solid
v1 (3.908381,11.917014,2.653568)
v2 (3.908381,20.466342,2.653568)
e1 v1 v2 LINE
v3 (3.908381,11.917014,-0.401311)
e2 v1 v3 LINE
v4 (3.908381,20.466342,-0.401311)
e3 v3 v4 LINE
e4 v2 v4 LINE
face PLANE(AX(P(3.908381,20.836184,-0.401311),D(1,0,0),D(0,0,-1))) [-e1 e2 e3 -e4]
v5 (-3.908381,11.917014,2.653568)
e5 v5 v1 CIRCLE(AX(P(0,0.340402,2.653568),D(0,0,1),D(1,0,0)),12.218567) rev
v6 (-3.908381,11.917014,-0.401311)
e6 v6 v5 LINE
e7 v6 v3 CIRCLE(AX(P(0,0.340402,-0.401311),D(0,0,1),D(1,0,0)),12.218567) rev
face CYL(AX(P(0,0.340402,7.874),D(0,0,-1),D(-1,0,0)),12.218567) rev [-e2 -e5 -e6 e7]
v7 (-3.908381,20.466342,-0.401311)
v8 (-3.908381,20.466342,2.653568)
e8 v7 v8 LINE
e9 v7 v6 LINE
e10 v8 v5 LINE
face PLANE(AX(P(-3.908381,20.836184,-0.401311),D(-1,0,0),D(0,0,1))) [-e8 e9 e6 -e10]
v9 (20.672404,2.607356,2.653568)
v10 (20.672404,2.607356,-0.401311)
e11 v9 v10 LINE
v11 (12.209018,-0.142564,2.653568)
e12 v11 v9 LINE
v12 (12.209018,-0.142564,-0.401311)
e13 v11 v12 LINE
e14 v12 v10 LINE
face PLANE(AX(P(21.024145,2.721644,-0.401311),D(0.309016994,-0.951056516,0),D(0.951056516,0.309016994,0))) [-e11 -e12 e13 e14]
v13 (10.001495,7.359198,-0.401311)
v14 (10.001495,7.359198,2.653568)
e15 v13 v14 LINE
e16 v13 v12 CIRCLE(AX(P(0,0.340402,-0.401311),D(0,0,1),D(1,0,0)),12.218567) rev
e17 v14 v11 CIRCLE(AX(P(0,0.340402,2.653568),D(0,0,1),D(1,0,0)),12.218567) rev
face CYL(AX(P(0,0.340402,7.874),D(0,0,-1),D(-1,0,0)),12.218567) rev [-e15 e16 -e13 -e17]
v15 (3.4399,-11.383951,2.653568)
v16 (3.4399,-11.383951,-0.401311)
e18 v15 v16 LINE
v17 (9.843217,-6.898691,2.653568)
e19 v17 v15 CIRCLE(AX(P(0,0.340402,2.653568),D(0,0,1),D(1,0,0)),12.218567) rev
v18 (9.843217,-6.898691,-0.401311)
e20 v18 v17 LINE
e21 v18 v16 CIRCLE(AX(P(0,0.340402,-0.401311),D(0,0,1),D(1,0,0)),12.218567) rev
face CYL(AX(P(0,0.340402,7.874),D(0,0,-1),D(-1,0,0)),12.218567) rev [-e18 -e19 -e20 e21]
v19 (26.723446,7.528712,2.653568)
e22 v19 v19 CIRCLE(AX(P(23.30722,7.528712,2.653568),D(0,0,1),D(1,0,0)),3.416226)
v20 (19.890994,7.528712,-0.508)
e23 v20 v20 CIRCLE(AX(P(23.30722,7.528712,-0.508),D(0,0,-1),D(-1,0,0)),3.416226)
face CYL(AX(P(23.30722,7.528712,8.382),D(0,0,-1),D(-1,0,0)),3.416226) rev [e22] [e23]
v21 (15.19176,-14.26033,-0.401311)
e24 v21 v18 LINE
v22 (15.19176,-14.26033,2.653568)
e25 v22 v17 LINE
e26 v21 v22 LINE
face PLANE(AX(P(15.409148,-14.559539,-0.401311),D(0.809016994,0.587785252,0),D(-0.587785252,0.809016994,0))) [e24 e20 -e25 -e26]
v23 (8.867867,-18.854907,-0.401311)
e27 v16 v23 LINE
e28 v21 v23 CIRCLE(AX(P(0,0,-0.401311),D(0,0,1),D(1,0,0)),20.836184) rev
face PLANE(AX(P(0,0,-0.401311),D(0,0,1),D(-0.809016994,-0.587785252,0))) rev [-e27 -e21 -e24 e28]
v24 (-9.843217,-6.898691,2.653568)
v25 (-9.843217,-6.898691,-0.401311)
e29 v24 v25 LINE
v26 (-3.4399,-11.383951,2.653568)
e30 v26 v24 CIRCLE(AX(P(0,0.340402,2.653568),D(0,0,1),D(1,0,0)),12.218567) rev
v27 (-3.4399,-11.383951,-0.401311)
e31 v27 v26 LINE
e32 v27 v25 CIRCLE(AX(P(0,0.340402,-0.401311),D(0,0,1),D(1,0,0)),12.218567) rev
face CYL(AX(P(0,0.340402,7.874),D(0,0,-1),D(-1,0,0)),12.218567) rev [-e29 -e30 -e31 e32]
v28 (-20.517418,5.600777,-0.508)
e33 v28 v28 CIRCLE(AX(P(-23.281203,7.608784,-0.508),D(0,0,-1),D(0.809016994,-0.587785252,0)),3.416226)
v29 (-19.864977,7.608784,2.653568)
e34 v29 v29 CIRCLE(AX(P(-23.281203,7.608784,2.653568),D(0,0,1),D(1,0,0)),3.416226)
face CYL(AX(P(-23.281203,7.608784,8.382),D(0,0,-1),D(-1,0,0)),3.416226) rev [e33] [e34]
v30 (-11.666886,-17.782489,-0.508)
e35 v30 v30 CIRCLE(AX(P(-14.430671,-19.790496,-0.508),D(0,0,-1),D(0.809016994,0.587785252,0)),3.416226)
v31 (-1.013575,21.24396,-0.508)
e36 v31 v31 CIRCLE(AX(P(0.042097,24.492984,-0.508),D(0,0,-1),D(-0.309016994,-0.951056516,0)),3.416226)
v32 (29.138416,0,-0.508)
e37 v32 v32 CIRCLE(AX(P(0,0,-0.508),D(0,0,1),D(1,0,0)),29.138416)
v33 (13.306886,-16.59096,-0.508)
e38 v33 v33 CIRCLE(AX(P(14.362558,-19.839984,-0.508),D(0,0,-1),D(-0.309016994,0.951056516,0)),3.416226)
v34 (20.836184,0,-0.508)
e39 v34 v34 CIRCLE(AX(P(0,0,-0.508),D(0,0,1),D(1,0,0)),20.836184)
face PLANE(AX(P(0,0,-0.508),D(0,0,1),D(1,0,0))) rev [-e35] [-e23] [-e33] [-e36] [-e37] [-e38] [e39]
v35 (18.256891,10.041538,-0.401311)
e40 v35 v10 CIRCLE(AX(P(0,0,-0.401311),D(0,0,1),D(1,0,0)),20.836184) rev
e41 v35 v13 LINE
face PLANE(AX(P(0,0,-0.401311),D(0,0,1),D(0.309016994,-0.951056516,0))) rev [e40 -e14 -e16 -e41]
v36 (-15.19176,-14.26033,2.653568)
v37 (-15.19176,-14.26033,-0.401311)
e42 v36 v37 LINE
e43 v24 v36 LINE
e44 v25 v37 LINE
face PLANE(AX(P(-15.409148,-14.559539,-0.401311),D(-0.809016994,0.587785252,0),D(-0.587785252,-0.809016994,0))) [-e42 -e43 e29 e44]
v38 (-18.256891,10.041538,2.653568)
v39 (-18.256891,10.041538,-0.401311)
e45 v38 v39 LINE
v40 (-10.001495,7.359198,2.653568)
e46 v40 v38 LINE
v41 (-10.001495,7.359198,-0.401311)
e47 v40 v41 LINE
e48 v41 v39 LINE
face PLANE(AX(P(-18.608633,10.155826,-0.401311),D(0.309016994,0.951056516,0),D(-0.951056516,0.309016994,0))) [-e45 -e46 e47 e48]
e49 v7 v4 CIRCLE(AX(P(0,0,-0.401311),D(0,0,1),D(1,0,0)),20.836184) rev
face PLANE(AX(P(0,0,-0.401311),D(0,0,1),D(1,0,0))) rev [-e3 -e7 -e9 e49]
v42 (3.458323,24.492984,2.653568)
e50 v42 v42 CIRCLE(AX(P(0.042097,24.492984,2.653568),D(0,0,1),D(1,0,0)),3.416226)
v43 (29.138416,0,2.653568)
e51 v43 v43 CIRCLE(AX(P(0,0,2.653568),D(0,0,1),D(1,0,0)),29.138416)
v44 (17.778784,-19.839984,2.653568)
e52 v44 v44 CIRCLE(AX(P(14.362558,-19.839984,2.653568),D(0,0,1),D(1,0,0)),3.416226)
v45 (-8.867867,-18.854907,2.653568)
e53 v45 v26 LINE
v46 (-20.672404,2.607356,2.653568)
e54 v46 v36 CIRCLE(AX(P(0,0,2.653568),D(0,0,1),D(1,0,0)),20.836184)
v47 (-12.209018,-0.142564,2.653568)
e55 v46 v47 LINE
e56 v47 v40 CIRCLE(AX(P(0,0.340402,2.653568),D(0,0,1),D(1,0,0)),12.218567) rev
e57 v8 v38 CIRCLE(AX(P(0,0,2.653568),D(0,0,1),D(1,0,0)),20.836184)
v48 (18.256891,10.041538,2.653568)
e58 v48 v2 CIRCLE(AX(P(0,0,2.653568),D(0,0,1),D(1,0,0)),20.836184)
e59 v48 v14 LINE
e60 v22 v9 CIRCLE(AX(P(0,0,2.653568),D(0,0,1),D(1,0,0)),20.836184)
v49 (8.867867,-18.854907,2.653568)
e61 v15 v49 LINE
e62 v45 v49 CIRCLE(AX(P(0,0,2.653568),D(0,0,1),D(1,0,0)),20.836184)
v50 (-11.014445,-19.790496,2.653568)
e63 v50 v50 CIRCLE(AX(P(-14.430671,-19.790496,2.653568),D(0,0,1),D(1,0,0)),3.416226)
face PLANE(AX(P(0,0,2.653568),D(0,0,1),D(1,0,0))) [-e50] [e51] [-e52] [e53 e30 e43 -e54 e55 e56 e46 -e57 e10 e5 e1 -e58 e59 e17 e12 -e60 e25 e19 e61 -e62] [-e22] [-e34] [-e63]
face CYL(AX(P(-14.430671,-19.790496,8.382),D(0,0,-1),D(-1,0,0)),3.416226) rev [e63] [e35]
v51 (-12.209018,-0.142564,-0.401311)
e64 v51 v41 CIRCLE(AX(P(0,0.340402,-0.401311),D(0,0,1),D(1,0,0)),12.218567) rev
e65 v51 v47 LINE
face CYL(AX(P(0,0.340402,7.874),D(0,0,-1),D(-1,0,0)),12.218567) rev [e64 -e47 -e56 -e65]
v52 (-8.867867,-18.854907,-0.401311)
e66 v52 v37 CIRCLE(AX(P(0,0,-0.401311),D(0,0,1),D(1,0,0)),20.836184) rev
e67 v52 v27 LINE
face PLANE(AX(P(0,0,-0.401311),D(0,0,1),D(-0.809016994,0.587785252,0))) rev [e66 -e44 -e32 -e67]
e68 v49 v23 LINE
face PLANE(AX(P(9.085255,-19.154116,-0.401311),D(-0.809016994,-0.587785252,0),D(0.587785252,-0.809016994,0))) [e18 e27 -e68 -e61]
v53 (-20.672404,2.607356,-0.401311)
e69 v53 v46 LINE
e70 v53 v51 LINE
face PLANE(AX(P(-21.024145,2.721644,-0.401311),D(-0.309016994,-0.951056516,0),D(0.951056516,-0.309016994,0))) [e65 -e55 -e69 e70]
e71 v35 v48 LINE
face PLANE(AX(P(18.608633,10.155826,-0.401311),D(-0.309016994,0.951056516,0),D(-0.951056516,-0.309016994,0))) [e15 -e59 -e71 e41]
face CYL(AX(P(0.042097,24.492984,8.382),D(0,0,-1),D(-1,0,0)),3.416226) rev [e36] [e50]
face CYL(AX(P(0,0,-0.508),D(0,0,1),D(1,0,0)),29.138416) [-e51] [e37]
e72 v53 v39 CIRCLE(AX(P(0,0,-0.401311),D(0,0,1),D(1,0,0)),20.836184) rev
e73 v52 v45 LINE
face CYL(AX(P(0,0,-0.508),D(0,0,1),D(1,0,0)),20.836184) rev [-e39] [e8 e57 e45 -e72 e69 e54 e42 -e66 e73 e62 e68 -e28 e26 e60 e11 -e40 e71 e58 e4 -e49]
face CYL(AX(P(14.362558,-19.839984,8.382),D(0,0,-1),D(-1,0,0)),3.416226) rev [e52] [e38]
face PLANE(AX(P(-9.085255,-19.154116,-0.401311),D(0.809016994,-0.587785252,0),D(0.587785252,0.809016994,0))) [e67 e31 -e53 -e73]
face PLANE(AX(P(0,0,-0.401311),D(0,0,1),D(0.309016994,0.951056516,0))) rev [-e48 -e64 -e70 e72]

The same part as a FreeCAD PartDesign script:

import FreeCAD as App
import Part
import Sketcher

V = App.Vector
Q = App.Units.Quantity


def add_polygon(sketch, points):
    """Adds a closed chain of lines whose ends are joined by coincident constraints."""
    first, n = sketch.GeometryCount, len(points)
    for a, b in zip(points, points[1:] + points[:1]):
        sketch.addGeometry(Part.LineSegment(App.Vector(*a, 0), App.Vector(*b, 0)), False)
    for i in range(n):
        sketch.addConstraint(Sketcher.Constraint("Coincident", first + i, 2, first + (i + 1) % n, 1))

doc = App.newDocument("Part")
body = doc.addObject("PartDesign::Body", "Body")

sketch1 = body.newObject("Sketcher::SketchObject", "Sketch")
sketch1.AttachmentSupport = (doc.getObject("XY_Plane"), [""])
sketch1.MapMode = "FlatFace"
sketch1.addGeometry([
    Part.Circle(V(0, 0, 0), V(0, 0, 1), 29),
    Part.Circle(V(0, 0, 0), V(0, 0, 1), 21),
], False)
sketch1.addConstraint([
    Sketcher.Constraint("Coincident", 0, 3, -1, 1),
    Sketcher.Constraint("Coincident", 1, 3, -1, 1),
    Sketcher.Constraint("Diameter", 1, 41.672369),
    Sketcher.Constraint("Diameter", 0, 58.276833),
])
pad1 = body.newObject("PartDesign::Pad", "Pad")
pad1.Profile = sketch1
pad1.Type = "TwoLengths"
pad1.Length = 2.653568
pad1.Length2 = Q("0.02 in")

sketch2 = body.newObject("Sketcher::SketchObject", "Sketch001")
sketch2.AttachmentSupport = (doc.getObject("XY_Plane"), [""])
sketch2.MapMode = "FlatFace"
sketch2.AttachmentOffset = App.Placement(V(0, 0, -0.401311), App.Rotation())
add_polygon(sketch2, [(-4, 21), (-4, 11), (4, 11), (4, 21)])
sketch2.addConstraint([
    Sketcher.Constraint("Vertical", 0),
    Sketcher.Constraint("Horizontal", 1),
    Sketcher.Constraint("Vertical", 2),
    Sketcher.Constraint("Horizontal", 3),
    Sketcher.Constraint("DistanceX", 1, 1, 1, 2, 7.816762),
    Sketcher.Constraint("DistanceY", 0, 2, 0, 1, 9.871955),
    Sketcher.Constraint("DistanceX", 0, 2, -1, 1, 3.908381),
    Sketcher.Constraint("DistanceY", -1, 1, 0, 2, 10.964229),
])
pad2 = body.newObject("PartDesign::Pad", "Pad001")
pad2.Profile = sketch2
pad2.Length = 3.054879
doc.recompute()

polarpattern = body.newObject("PartDesign::PolarPattern", "PolarPattern")
polarpattern.Originals = [pad2]
polarpattern.Axis = (doc.getObject("Z_Axis"), [""])
polarpattern.Angle = 360
polarpattern.Occurrences = 5
body.Tip = polarpattern

sketch3 = body.newObject("Sketcher::SketchObject", "Sketch002")
sketch3.AttachmentSupport = (doc.getObject("XY_Plane"), [""])
sketch3.MapMode = "FlatFace"
sketch3.AttachmentOffset = App.Placement(V(0, 0, -0.02 * 25.4), App.Rotation())
sketch3.addGeometry(Part.Circle(V(23.3, 7.5, 0), V(0, 0, 1), 3.4), False)
sketch3.addConstraint([
    Sketcher.Constraint("Diameter", 0, 6.832452),
    Sketcher.Constraint("DistanceX", -1, 1, 0, 3, 23.30722),
    Sketcher.Constraint("DistanceY", -1, 1, 0, 3, 7.528712),
])
pocket1 = body.newObject("PartDesign::Pocket", "Pocket")
pocket1.Profile = sketch3
pocket1.Length = Q("0.35 in")
pocket1.Reversed = True
doc.recompute()

polarpattern2 = body.newObject("PartDesign::PolarPattern", "PolarPattern001")
polarpattern2.Originals = [pocket1]
polarpattern2.Axis = (doc.getObject("Z_Axis"), [""])
polarpattern2.Angle = 360
polarpattern2.Occurrences = 5
body.Tip = polarpattern2

sketch4 = body.newObject("Sketcher::SketchObject", "Sketch003")
sketch4.AttachmentSupport = (doc.getObject("XY_Plane"), [""])
sketch4.MapMode = "FlatFace"
sketch4.addGeometry(Part.Circle(V(0, 0, 0), V(0, 0, 1), 12), False)
sketch4.addConstraint([
    Sketcher.Constraint("PointOnObject", 0, 3, -2),
    Sketcher.Constraint("Diameter", 0, 24.437134),
    Sketcher.Constraint("DistanceY", -1, 1, 0, 3, 0.340402),
])
pocket2 = body.newObject("PartDesign::Pocket", "Pocket001")
pocket2.Profile = sketch4
pocket2.Type = "ThroughAll"
pocket2.Midplane = True

doc.recompute()
